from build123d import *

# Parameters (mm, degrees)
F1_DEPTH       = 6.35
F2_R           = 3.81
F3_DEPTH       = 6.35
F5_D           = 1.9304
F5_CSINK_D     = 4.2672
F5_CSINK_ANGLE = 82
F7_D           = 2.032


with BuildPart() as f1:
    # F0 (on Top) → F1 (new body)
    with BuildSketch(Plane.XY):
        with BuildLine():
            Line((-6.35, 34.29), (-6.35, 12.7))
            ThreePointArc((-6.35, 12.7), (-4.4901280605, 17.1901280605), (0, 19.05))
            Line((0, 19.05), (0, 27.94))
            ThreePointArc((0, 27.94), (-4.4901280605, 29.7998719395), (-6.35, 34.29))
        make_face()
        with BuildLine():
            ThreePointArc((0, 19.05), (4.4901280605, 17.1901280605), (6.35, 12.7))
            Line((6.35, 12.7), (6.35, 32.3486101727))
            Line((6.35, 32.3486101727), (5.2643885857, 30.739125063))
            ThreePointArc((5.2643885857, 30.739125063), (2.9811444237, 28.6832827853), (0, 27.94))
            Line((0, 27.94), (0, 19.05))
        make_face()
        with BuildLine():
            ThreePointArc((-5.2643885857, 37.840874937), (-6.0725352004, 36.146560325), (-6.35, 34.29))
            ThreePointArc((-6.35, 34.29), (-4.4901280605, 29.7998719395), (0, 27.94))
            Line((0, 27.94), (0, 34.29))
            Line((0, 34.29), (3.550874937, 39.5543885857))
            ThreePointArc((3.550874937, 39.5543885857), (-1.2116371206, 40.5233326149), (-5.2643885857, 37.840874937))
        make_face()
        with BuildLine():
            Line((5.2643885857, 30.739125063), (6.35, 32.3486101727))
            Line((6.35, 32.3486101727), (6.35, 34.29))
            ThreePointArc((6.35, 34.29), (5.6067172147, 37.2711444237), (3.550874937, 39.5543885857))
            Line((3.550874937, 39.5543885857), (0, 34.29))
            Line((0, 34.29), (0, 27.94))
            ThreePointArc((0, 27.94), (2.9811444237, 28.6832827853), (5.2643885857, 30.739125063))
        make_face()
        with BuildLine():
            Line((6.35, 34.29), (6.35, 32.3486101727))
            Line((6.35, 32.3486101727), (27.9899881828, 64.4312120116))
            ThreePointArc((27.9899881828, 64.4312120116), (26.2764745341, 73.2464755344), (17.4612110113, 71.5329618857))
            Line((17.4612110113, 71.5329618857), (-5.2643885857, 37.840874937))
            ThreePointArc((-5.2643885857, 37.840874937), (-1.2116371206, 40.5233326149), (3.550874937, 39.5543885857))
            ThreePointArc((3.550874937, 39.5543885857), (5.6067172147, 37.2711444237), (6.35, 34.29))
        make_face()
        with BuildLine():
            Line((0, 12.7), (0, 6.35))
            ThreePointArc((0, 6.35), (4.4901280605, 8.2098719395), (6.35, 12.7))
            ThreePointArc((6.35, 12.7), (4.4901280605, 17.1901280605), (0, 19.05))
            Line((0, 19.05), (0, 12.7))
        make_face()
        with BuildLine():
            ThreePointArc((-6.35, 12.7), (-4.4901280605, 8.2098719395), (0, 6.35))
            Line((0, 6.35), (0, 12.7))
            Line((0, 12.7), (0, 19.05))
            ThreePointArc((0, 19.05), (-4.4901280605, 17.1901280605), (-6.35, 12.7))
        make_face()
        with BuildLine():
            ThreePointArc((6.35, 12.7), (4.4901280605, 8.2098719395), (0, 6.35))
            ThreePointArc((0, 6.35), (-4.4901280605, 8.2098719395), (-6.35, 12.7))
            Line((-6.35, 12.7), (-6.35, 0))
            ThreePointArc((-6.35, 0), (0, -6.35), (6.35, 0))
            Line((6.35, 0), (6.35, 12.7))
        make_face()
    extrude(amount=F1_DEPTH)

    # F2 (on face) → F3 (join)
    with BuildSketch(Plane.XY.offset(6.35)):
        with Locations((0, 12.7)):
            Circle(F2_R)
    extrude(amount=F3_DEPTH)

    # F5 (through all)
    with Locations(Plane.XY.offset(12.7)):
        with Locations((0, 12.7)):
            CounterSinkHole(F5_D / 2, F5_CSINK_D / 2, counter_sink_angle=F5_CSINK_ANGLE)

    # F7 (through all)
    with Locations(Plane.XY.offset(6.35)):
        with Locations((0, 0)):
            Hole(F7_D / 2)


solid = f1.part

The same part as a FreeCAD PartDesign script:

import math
import FreeCAD as App
import Part
import Sketcher
from FreeCAD import Vector
Q = App.Units.Quantity

doc = App.newDocument("Part")
params = doc.addObject("Spreadsheet::Sheet", "Params")
for row, (alias, value) in enumerate([
    ("sketch1_radius", "0.25 in"),
    ("sketch1_length", "1.6 in"),
    ("sketch1_height", "1.35 in"),
    ("pad1_length", "0.25 in"),
    ("sketch2_diameter", "0.3 in"),
    ("pad2_length", "0.25 in"),
    ("sketch3_diameter", "0.076 in"),
    ("hole_diameter", "0.076 in"),
    ("hole_csink_diameter", "0.168 in"),
    ("sketch4_diameter", "0.08 in"),
    ("hole2_diameter", "0.08 in"),
], start=1):
    params.set(f"A{row}", alias)
    params.set(f"B{row}", "=" + value)
    params.setAlias(f"B{row}", alias)

body = doc.addObject("PartDesign::Body", "Body")

sketch1 = body.newObject("Sketcher::SketchObject", "Sketch")
sketch1.AttachmentSupport = (doc.getObject("XY_Plane"), [""])
sketch1.MapMode = "FlatFace"
sketch1.addGeometry(Part.LineSegment(Vector(-6.3, 34.3, 0), Vector(-6.3, 0, 0)), False)
sketch1.addGeometry(Part.ArcOfCircle(Part.Circle(Vector(0, 0, 0), Vector(0, 0, 1), 6.3), math.radians(180), math.radians(360)), False)
sketch1.addGeometry(Part.LineSegment(Vector(6.3, 0, 0), Vector(6.3, 32.3, 0)), False)
sketch1.addGeometry(Part.LineSegment(Vector(6.3, 32.3, 0), Vector(28, 64.4, 0)), False)
sketch1.addGeometry(Part.ArcOfCircle(Part.Circle(Vector(22.7, 68, 0), Vector(0, 0, 1), 6.3), math.radians(-34), math.radians(146)), False)
sketch1.addGeometry(Part.LineSegment(Vector(17.5, 71.5, 0), Vector(-5.3, 37.8, 0)), False)
sketch1.addGeometry(Part.ArcOfCircle(Part.Circle(Vector(0, 34.3, 0), Vector(0, 0, 1), 6.3), math.radians(146), math.radians(180)), False)
sketch1.addConstraint(Sketcher.Constraint("Tangent", 0, 2, 1, 1))
sketch1.addConstraint(Sketcher.Constraint("Tangent", 1, 2, 2, 1))
sketch1.addConstraint(Sketcher.Constraint("Coincident", 2, 2, 3, 1))
sketch1.addConstraint(Sketcher.Constraint("Tangent", 3, 2, 4, 1))
sketch1.addConstraint(Sketcher.Constraint("Tangent", 4, 2, 5, 1))
sketch1.addConstraint(Sketcher.Constraint("Tangent", 5, 2, 6, 1))
sketch1.addConstraint(Sketcher.Constraint("Tangent", 6, 2, 0, 1))
sketch1.addConstraint(Sketcher.Constraint("Vertical", 0))
sketch1.addConstraint(Sketcher.Constraint("Vertical", 2))
sketch1.addConstraint(Sketcher.Constraint("Coincident", 1, 3, -1, 1))
sketch1.addConstraint(Sketcher.Constraint("Equal", 1, 4))
sketch1.addConstraint(Sketcher.Constraint("Equal", 4, 6))
sketch1.addConstraint(Sketcher.Constraint("Parallel", 3, 5))
sketch1.addConstraint(Sketcher.Constraint("Radius", 1, Q("0.25 in")))
sketch1.addConstraint(Sketcher.Constraint("Angle", 3, Q("56 deg")))
sketch1.addConstraint(Sketcher.Constraint("Distance", 5, Q("1.6 in")))
sketch1.addConstraint(Sketcher.Constraint("DistanceY", 0, 2, 0, 1, Q("1.35 in")))
sketch1.setExpression("Constraints[13]", "Params.sketch1_radius")
sketch1.setExpression("Constraints[15]", "Params.sketch1_length")
sketch1.setExpression("Constraints[16]", "Params.sketch1_height")
pad1 = body.newObject("PartDesign::Pad", "Pad")
pad1.Profile = sketch1
pad1.setExpression("Length", "Params.pad1_length")

sketch2 = body.newObject("Sketcher::SketchObject", "Sketch001")
sketch2.AttachmentSupport = (doc.getObject("XY_Plane"), [""])
sketch2.MapMode = "FlatFace"
sketch2.AttachmentOffset = App.Placement(Vector(0, 0, 0.25 * 25.4), App.Rotation())
sketch2.addGeometry(Part.Circle(Vector(0, 12.7, 0), Vector(0, 0, 1), 3.8), False)
sketch2.addConstraint(Sketcher.Constraint("PointOnObject", 0, 3, -2))
sketch2.addConstraint(Sketcher.Constraint("Diameter", 0, Q("0.3 in")))
sketch2.addConstraint(Sketcher.Constraint("DistanceY", -1, 1, 0, 3, Q("0.5 in")))
sketch2.setExpression("Constraints[1]", "Params.sketch2_diameter")
pad2 = body.newObject("PartDesign::Pad", "Pad001")
pad2.Profile = sketch2
pad2.setExpression("Length", "Params.pad2_length")

sketch3 = body.newObject("Sketcher::SketchObject", "Sketch002")
sketch3.AttachmentSupport = (doc.getObject("XY_Plane"), [""])
sketch3.MapMode = "FlatFace"
sketch3.AttachmentOffset = App.Placement(Vector(0, 0, 0.5 * 25.4), App.Rotation())
sketch3.addGeometry(Part.Circle(Vector(0, 12.7, 0), Vector(0, 0, 1), 1), False)
sketch3.addConstraint(Sketcher.Constraint("PointOnObject", 0, 3, -2))
sketch3.addConstraint(Sketcher.Constraint("Diameter", 0, Q("0.076 in")))
sketch3.addConstraint(Sketcher.Constraint("DistanceY", -1, 1, 0, 3, Q("0.5 in")))
sketch3.setExpression("Constraints[1]", "Params.sketch3_diameter")
doc.recompute()
hole = body.newObject("PartDesign::Hole", "Hole")
hole.Profile = sketch3
hole.ThreadType = "None"
hole.setExpression("Diameter", "Params.hole_diameter")
hole.DepthType = "ThroughAll"
hole.HoleCutType = "Countersink"
hole.setExpression("HoleCutDiameter", "Params.hole_csink_diameter")
hole.HoleCutCountersinkAngle = 82

sketch4 = body.newObject("Sketcher::SketchObject", "Sketch003")
sketch4.AttachmentSupport = (doc.getObject("XY_Plane"), [""])
sketch4.MapMode = "FlatFace"
sketch4.AttachmentOffset = App.Placement(Vector(0, 0, 0.25 * 25.4), App.Rotation())
sketch4.addGeometry(Part.Circle(Vector(0, 0, 0), Vector(0, 0, 1), 1), False)
sketch4.addConstraint(Sketcher.Constraint("Coincident", 0, 3, -1, 1))
sketch4.addConstraint(Sketcher.Constraint("Diameter", 0, Q("0.08 in")))
sketch4.setExpression("Constraints[1]", "Params.sketch4_diameter")
doc.recompute()
hole2 = body.newObject("PartDesign::Hole", "Hole001")
hole2.Profile = sketch4
hole2.ThreadType = "None"
hole2.setExpression("Diameter", "Params.hole2_diameter")
hole2.DepthType = "ThroughAll"

doc.recompute()
